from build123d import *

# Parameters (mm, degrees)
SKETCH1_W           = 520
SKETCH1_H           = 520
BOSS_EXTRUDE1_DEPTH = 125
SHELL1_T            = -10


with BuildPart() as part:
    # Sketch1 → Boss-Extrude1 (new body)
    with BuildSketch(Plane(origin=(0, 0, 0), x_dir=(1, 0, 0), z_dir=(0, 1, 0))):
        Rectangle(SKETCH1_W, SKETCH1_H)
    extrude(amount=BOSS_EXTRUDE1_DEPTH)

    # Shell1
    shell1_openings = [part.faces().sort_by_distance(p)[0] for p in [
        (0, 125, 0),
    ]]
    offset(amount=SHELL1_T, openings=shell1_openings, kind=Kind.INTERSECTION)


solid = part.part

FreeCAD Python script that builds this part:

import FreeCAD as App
import Part
import Sketcher

V = App.Vector
Q = App.Units.Quantity


def faces_at(feature, points):
    """Names of the faces that lie closest to the given points."""
    faces = feature.Shape.Faces
    near = lambda p: min(range(len(faces)), key=lambda i: faces[i].distToShape(Part.Vertex(*p))[0])
    return sorted({f"Face{near(p) + 1}" for p in points})


def add_polygon(sketch, points):
    """Adds a closed chain of lines whose ends are joined by coincident constraints."""
    first, n = sketch.GeometryCount, len(points)
    for a, b in zip(points, points[1:] + points[:1]):
        sketch.addGeometry(Part.LineSegment(App.Vector(*a, 0), App.Vector(*b, 0)), False)
    for i in range(n):
        sketch.addConstraint(Sketcher.Constraint("Coincident", first + i, 2, first + (i + 1) % n, 1))

doc = App.newDocument("Part")
params = doc.addObject("Spreadsheet::Sheet", "Params")
for row, (alias, value) in enumerate([
    ("sketch1_width", "520 mm"),
    ("pad1_length", "125 mm"),
    ("thickness_wall", "10 mm"),
], start=1):
    params.set(f"A{row}", alias)
    params.set(f"B{row}", "=" + value)
    params.setAlias(f"B{row}", alias)

body = doc.addObject("PartDesign::Body", "Body")

# Sketch on XZ plane
sketch1 = doc.addObject("Sketcher::SketchObject", "Sketch")
body.addObject(sketch1)
sketch1.AttachmentSupport = (doc.XZ_Plane, [""])
sketch1.MapMode = "FlatFace"
add_polygon(sketch1, [(-260, -260), (-260, 260), (260, 260), (260, -260)])  # lines 0-3
sketch1.addConstraint(Sketcher.Constraint("Vertical", 0))
sketch1.addConstraint(Sketcher.Constraint("Horizontal", 1))
sketch1.addConstraint(Sketcher.Constraint("Vertical", 2))
sketch1.addConstraint(Sketcher.Constraint("Horizontal", 3))
sketch1.addConstraint(Sketcher.Constraint("Symmetric", 0, 2, 2, 2, -1, 1))
sketch1.addConstraint(Sketcher.Constraint("Equal", 3, 0))
sketch1.addConstraint(Sketcher.Constraint("DistanceX", 1, 1, 1, 2, Q("520 mm")))
sketch1.setExpression("Constraints[10]", "Params.sketch1_width")
pad1 = doc.addObject("PartDesign::Pad", "Pad")
body.addObject(pad1)
pad1.Profile = sketch1
pad1.setExpression("Length", "Params.pad1_length")
pad1.Reversed = True
doc.recompute()

thickness = doc.addObject("PartDesign::Thickness", "Thickness")
body.addObject(thickness)
thickness.Base = (pad1, faces_at(pad1, [(0, 125, 0)]))
thickness.setExpression("Value", "Params.thickness_wall")
thickness.Reversed = True
thickness.Join = "Intersection"

doc.recompute()
